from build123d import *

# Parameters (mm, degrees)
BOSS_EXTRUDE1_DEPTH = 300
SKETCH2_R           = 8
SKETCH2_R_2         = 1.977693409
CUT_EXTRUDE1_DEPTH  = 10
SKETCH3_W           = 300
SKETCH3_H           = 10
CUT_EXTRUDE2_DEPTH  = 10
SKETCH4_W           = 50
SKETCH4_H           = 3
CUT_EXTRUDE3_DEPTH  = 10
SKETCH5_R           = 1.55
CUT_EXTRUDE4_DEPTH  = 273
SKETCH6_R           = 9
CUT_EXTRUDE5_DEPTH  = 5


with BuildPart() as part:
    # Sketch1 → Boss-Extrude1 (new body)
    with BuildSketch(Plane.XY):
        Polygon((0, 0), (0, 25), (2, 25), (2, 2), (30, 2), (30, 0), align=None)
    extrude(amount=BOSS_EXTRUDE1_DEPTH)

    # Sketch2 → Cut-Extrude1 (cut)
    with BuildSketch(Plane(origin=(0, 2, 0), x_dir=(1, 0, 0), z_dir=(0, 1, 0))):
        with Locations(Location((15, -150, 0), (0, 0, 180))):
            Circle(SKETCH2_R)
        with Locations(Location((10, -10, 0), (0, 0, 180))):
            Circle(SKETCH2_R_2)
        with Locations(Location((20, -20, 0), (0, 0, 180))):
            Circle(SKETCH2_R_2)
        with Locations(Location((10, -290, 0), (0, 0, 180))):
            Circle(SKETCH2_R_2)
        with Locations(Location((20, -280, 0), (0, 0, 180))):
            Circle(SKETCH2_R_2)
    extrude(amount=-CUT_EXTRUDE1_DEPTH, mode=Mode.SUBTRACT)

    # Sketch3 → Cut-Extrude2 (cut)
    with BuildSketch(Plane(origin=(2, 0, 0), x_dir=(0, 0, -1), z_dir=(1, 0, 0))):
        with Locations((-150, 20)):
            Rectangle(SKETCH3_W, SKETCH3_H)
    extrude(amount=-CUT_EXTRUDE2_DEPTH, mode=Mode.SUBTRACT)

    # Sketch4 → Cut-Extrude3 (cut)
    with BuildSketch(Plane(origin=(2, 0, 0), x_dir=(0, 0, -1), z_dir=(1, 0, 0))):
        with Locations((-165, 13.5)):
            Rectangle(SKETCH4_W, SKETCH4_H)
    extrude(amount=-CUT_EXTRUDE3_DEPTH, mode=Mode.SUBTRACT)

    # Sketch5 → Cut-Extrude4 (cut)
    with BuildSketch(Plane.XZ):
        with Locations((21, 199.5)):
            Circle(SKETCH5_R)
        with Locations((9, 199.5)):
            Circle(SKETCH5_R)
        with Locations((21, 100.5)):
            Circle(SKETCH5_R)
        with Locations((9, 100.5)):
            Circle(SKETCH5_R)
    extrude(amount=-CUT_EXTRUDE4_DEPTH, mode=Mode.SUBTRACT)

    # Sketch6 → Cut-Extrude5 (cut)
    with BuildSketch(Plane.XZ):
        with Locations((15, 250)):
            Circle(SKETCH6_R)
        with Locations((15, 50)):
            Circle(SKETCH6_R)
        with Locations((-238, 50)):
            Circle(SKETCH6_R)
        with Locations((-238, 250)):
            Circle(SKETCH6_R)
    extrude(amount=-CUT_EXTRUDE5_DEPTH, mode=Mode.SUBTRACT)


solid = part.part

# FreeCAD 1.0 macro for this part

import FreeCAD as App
import Part
import Sketcher

V = App.Vector


def add_polygon(sketch, points):
    """Adds a closed chain of lines whose ends are joined by coincident constraints."""
    first, n = sketch.GeometryCount, len(points)
    for a, b in zip(points, points[1:] + points[:1]):
        sketch.addGeometry(Part.LineSegment(App.Vector(*a, 0), App.Vector(*b, 0)), False)
    for i in range(n):
        sketch.addConstraint(Sketcher.Constraint("Coincident", first + i, 2, first + (i + 1) % n, 1))

doc = App.newDocument("Part")
body = doc.addObject("PartDesign::Body", "Body")

# Sketch on XY plane
sketch1 = body.newObject("Sketcher::SketchObject", "Sketch")
sketch1.AttachmentSupport = (doc.getObject("XY_Plane"), [""])
sketch1.MapMode = "FlatFace"
add_polygon(sketch1, [(0, 25), (0, 0), (30, 0), (30, 2), (2, 2), (2, 25)])  # lines 0-5
sketch1.addConstraint(Sketcher.Constraint("Vertical", 0))
sketch1.addConstraint(Sketcher.Constraint("Horizontal", 1))
sketch1.addConstraint(Sketcher.Constraint("Vertical", 2))
sketch1.addConstraint(Sketcher.Constraint("Horizontal", 3))
sketch1.addConstraint(Sketcher.Constraint("Vertical", 4))
sketch1.addConstraint(Sketcher.Constraint("Horizontal", 5))
sketch1.addConstraint(Sketcher.Constraint("Coincident", 0, 2, -1, 1))
sketch1.addConstraint(Sketcher.Constraint("Equal", 5, 2))
sketch1.addConstraint(Sketcher.Constraint("DistanceX", 1, 1, 1, 2, 30.0))
sketch1.addConstraint(Sketcher.Constraint("DistanceX", 3, 2, 3, 1, 28.0))
sketch1.addConstraint(Sketcher.Constraint("DistanceY", 0, 2, 0, 1, 25.0))
pad1 = body.newObject("PartDesign::Pad", "Pad")
pad1.Profile = sketch1
pad1.Length = 300

# Sketch on XZ plane
sketch2 = body.newObject("Sketcher::SketchObject", "Sketch001")
sketch2.AttachmentSupport = (doc.getObject("XZ_Plane"), [""])
sketch2.MapMode = "FlatFace"
sketch2.AttachmentOffset = App.Placement(V(0, 0, -2), App.Rotation())
sketch2.addGeometry(Part.Circle(V(15, 150, 0), V(0, 0, 1), 8), False)
sketch2.addGeometry(Part.Circle(V(10, 10, 0), V(0, 0, 1), 2), False)
sketch2.addGeometry(Part.Circle(V(20, 20, 0), V(0, 0, 1), 2), False)
sketch2.addGeometry(Part.Circle(V(10, 290, 0), V(0, 0, 1), 2), False)
sketch2.addGeometry(Part.Circle(V(20, 280, 0), V(0, 0, 1), 2), False)
sketch2.addConstraint(Sketcher.Constraint("Equal", 1, 2))
sketch2.addConstraint(Sketcher.Constraint("Equal", 2, 3))
sketch2.addConstraint(Sketcher.Constraint("Equal", 3, 4))
sketch2.addConstraint(Sketcher.Constraint("Vertical", 1, 3, 3, 3))
sketch2.addConstraint(Sketcher.Constraint("Vertical", 2, 3, 4, 3))
sketch2.addConstraint(Sketcher.Constraint("Diameter", 0, 16.0))
sketch2.addConstraint(Sketcher.Constraint("DistanceX", -1, 1, 0, 3, 15.0))
sketch2.addConstraint(Sketcher.Constraint("DistanceY", -1, 1, 0, 3, 150.0))
sketch2.addConstraint(Sketcher.Constraint("DistanceX", -1, 1, 1, 3, 10.0))
sketch2.addConstraint(Sketcher.Constraint("DistanceY", -1, 1, 1, 3, 10.0))
sketch2.addConstraint(Sketcher.Constraint("DistanceX", -1, 1, 2, 3, 20.0))
sketch2.addConstraint(Sketcher.Constraint("DistanceY", -1, 1, 2, 3, 20.0))
sketch2.addConstraint(Sketcher.Constraint("DistanceY", -1, 1, 3, 3, 290.0))
sketch2.addConstraint(Sketcher.Constraint("DistanceY", -1, 1, 4, 3, 280.0))
sketch2.addConstraint(Sketcher.Constraint("Diameter", 1, 3.955387))
pocket1 = body.newObject("PartDesign::Pocket", "Pocket")
pocket1.Profile = sketch2
pocket1.Length = 10
pocket1.Reversed = True

# Sketch on YZ plane
sketch3 = body.newObject("Sketcher::SketchObject", "Sketch002")
sketch3.AttachmentSupport = (doc.getObject("YZ_Plane"), [""])
sketch3.MapMode = "FlatFace"
sketch3.AttachmentOffset = App.Placement(V(0, 0, 2), App.Rotation())
add_polygon(sketch3, [(25, 300), (15, 300), (15, 0), (25, 0)])  # lines 0-3
sketch3.addConstraint(Sketcher.Constraint("Horizontal", 0))
sketch3.addConstraint(Sketcher.Constraint("Vertical", 1))
sketch3.addConstraint(Sketcher.Constraint("Horizontal", 2))
sketch3.addConstraint(Sketcher.Constraint("Vertical", 3))
sketch3.addConstraint(Sketcher.Constraint("PointOnObject", 1, 2, -1))
sketch3.addConstraint(Sketcher.Constraint("DistanceX", 0, 2, 0, 1, 10.0))
sketch3.addConstraint(Sketcher.Constraint("DistanceY", 1, 2, 1, 1, 300.0))
sketch3.addConstraint(Sketcher.Constraint("DistanceX", -1, 1, 0, 2, 15.0))
pocket2 = body.newObject("PartDesign::Pocket", "Pocket001")
pocket2.Profile = sketch3
pocket2.Length = 10

# Sketch on YZ plane
sketch4 = body.newObject("Sketcher::SketchObject", "Sketch003")
sketch4.AttachmentSupport = (doc.getObject("YZ_Plane"), [""])
sketch4.MapMode = "FlatFace"
sketch4.AttachmentOffset = App.Placement(V(0, 0, 2), App.Rotation())
add_polygon(sketch4, [(15, 190), (12, 190), (12, 140), (15, 140)])  # lines 0-3
sketch4.addConstraint(Sketcher.Constraint("Horizontal", 0))
sketch4.addConstraint(Sketcher.Constraint("Vertical", 1))
sketch4.addConstraint(Sketcher.Constraint("Horizontal", 2))
sketch4.addConstraint(Sketcher.Constraint("Vertical", 3))
sketch4.addConstraint(Sketcher.Constraint("DistanceX", 0, 2, 0, 1, 3.0))
sketch4.addConstraint(Sketcher.Constraint("DistanceY", 1, 2, 1, 1, 50.0))
sketch4.addConstraint(Sketcher.Constraint("DistanceX", -1, 1, 0, 2, 12.0))
sketch4.addConstraint(Sketcher.Constraint("DistanceY", -1, 1, 0, 2, 190.0))
pocket3 = body.newObject("PartDesign::Pocket", "Pocket002")
pocket3.Profile = sketch4
pocket3.Length = 10

# Sketch on XZ plane
sketch5 = body.newObject("Sketcher::SketchObject", "Sketch004")
sketch5.AttachmentSupport = (doc.getObject("XZ_Plane"), [""])
sketch5.MapMode = "FlatFace"
sketch5.addGeometry(Part.Circle(V(21, 199.5, 0), V(0, 0, 1), 1.6), False)
sketch5.addGeometry(Part.Circle(V(9, 199.5, 0), V(0, 0, 1), 1.6), False)
sketch5.addGeometry(Part.Circle(V(21, 100.5, 0), V(0, 0, 1), 1.6), False)
sketch5.addGeometry(Part.Circle(V(9, 100.5, 0), V(0, 0, 1), 1.6), False)
sketch5.addConstraint(Sketcher.Constraint("Equal", 0, 1))
sketch5.addConstraint(Sketcher.Constraint("Equal", 1, 2))
sketch5.addConstraint(Sketcher.Constraint("Equal", 2, 3))
sketch5.addConstraint(Sketcher.Constraint("Horizontal", 0, 3, 1, 3))
sketch5.addConstraint(Sketcher.Constraint("Horizontal", 2, 3, 3, 3))
sketch5.addConstraint(Sketcher.Constraint("Vertical", 0, 3, 2, 3))
sketch5.addConstraint(Sketcher.Constraint("Vertical", 1, 3, 3, 3))
sketch5.addConstraint(Sketcher.Constraint("Diameter", 0, 3.1))
sketch5.addConstraint(Sketcher.Constraint("DistanceX", -1, 1, 0, 3, 21.0))
sketch5.addConstraint(Sketcher.Constraint("DistanceX", -1, 1, 1, 3, 9.0))
sketch5.addConstraint(Sketcher.Constraint("DistanceY", 2, 3, 0, 3, 99.0))
sketch5.addConstraint(Sketcher.Constraint("DistanceY", -1, 1, 0, 3, 199.5))
pocket4 = body.newObject("PartDesign::Pocket", "Pocket003")
pocket4.Profile = sketch5
pocket4.Length = 273

# Sketch on XZ plane
sketch6 = body.newObject("Sketcher::SketchObject", "Sketch005")
sketch6.AttachmentSupport = (doc.getObject("XZ_Plane"), [""])
sketch6.MapMode = "FlatFace"
sketch6.addGeometry(Part.Circle(V(15, 250, 0), V(0, 0, 1), 9), False)
sketch6.addGeometry(Part.Circle(V(15, 50, 0), V(0, 0, 1), 9), False)
sketch6.addGeometry(Part.Circle(V(-238, 50, 0), V(0, 0, 1), 9), False)
sketch6.addGeometry(Part.Circle(V(-238, 250, 0), V(0, 0, 1), 9), False)
sketch6.addConstraint(Sketcher.Constraint("Equal", 0, 1))
sketch6.addConstraint(Sketcher.Constraint("Equal", 1, 2))
sketch6.addConstraint(Sketcher.Constraint("Equal", 2, 3))
sketch6.addConstraint(Sketcher.Constraint("Horizontal", 1, 3, 2, 3))
sketch6.addConstraint(Sketcher.Constraint("Horizontal", 0, 3, 3, 3))
sketch6.addConstraint(Sketcher.Constraint("Vertical", 0, 3, 1, 3))
sketch6.addConstraint(Sketcher.Constraint("Vertical", 2, 3, 3, 3))
sketch6.addConstraint(Sketcher.Constraint("Diameter", 0, 18.0))
sketch6.addConstraint(Sketcher.Constraint("DistanceX", -1, 1, 0, 3, 15.0))
sketch6.addConstraint(Sketcher.Constraint("DistanceY", -1, 1, 0, 3, 250.0))
sketch6.addConstraint(Sketcher.Constraint("DistanceY", -1, 1, 1, 3, 50.0))
sketch6.addConstraint(Sketcher.Constraint("DistanceX", 2, 3, -1, 1, 238.0))
pocket5 = body.newObject("PartDesign::Pocket", "Pocket004")
pocket5.Profile = sketch6
pocket5.Length = 5

doc.recompute()
